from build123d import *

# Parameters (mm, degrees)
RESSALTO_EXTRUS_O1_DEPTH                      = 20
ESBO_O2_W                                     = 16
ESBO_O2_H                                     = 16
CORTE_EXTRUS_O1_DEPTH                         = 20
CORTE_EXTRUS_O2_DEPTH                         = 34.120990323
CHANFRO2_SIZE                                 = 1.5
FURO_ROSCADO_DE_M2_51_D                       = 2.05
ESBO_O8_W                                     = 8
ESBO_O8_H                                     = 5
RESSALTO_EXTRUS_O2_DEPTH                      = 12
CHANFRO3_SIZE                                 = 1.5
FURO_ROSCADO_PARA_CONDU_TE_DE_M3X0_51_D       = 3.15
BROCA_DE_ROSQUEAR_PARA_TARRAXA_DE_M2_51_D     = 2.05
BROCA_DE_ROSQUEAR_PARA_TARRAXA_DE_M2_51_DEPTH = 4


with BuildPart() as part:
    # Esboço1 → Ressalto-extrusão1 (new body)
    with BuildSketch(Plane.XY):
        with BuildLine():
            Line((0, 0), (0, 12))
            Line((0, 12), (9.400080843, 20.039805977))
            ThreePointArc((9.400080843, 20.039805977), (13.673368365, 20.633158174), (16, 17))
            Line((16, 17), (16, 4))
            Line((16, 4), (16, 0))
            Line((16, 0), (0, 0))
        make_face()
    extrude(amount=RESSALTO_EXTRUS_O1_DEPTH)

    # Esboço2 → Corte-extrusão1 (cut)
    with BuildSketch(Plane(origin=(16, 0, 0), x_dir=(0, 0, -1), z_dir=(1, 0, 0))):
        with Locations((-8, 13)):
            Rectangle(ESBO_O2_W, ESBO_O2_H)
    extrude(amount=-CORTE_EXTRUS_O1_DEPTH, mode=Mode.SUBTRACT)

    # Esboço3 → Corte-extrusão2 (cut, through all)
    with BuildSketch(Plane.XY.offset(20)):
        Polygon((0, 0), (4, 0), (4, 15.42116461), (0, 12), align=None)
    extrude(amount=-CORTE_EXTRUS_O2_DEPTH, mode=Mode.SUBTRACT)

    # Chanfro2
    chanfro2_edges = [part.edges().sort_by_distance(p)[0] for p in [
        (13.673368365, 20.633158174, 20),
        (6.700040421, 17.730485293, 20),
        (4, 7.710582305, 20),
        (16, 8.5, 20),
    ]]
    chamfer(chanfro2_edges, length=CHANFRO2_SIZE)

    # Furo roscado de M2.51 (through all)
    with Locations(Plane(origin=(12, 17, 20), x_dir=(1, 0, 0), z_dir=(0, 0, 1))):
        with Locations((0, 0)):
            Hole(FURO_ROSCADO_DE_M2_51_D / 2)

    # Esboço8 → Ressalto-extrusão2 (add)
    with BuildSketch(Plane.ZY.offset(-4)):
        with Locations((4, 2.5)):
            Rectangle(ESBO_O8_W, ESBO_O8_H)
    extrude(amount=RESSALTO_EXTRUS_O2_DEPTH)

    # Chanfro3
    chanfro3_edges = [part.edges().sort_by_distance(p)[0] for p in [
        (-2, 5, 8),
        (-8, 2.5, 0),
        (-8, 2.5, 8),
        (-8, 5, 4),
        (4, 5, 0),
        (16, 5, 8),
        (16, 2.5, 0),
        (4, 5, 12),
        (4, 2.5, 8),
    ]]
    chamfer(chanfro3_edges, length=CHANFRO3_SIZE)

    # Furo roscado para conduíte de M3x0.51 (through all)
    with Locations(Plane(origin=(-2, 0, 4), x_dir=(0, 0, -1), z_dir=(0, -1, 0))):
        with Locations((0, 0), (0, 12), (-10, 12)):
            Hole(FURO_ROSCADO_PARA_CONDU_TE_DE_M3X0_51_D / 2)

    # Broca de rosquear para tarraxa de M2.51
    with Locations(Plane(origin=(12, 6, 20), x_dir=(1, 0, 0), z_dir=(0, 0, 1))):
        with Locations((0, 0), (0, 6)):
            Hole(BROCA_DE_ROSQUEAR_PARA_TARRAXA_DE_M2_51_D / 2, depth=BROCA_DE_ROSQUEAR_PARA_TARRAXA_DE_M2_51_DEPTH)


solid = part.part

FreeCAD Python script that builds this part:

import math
import FreeCAD as App
import Part
import Sketcher


def edges_at(feature, points):
    """Names of the edges that pass closest to the given points."""
    edges = feature.Shape.Edges
    near = lambda p: min(range(len(edges)), key=lambda i: edges[i].distToShape(Part.Vertex(*p))[0])
    return sorted({f"Edge{near(p) + 1}" for p in points})


def add_polygon(sketch, points):
    """Adds a closed chain of lines whose ends are joined by coincident constraints."""
    first, n = sketch.GeometryCount, len(points)
    for a, b in zip(points, points[1:] + points[:1]):
        sketch.addGeometry(Part.LineSegment(App.Vector(*a, 0), App.Vector(*b, 0)), False)
    for i in range(n):
        sketch.addConstraint(Sketcher.Constraint("Coincident", first + i, 2, first + (i + 1) % n, 1))

doc = App.newDocument("Part")
params = doc.addObject("Spreadsheet::Sheet", "Params")
for row, (alias, value) in enumerate([
    ("sketch1_radius", "4 mm"),
    ("sketch1_width", "16 mm"),
    ("sketch1_height", "12 mm"),
    ("sketch1_height2", "17 mm"),
    ("pad1_length", "20 mm"),
    ("sketch2_width", "16 mm"),
    ("pocket1_length", "20 mm"),
    ("sketch3_width", "4 mm"),
    ("sketch3_height", "12 mm"),
    ("chamfer_size", "1.5 mm"),
    ("sketch4_diameter", "2.05 mm"),
    ("hole_diameter", "2.05 mm"),
    ("sketch5_width", "5 mm"),
    ("sketch5_height", "8 mm"),
    ("pad2_length", "12 mm"),
    ("chamfer2_size", "1.5 mm"),
    ("sketch6_diameter", "3.15 mm"),
    ("hole2_diameter", "3.15 mm"),
    ("sketch7_diameter", "2.05 mm"),
    ("hole3_diameter", "2.05 mm"),
    ("hole3_depth", "4 mm"),
], start=1):
    params.set(f"A{row}", alias)
    params.set(f"B{row}", "=" + value)
    params.setAlias(f"B{row}", alias)

body = doc.addObject("PartDesign::Body", "Body")

# Sketch on XY plane
sketch1 = doc.addObject("Sketcher::SketchObject", "Sketch")
body.addObject(sketch1)
sketch1.AttachmentSupport = (doc.XY_Plane, [""])
sketch1.MapMode = "FlatFace"
sketch1.addGeometry([
    Part.LineSegment(App.Vector(0, 12, 0), App.Vector(0, 0, 0)),  # 0
    Part.LineSegment(App.Vector(0, 0, 0), App.Vector(16, 0, 0)),  # 1
    Part.LineSegment(App.Vector(16, 0, 0), App.Vector(16, 17, 0)),  # 2
    Part.ArcOfCircle(Part.Circle(App.Vector(12, 17, 0), App.Vector(0, 0, 1), 4), math.radians(0), math.radians(130.540078)),  # 3
    Part.LineSegment(App.Vector(9.400081, 20.039806, 0), App.Vector(0, 12, 0)),  # 4
], False)
sketch1.addConstraint([
    Sketcher.Constraint("Coincident", 0, 2, 1, 1),
    Sketcher.Constraint("Coincident", 1, 2, 2, 1),
    Sketcher.Constraint("Tangent", 2, 2, 3, 1),
    Sketcher.Constraint("Tangent", 3, 2, 4, 1),
    Sketcher.Constraint("Coincident", 4, 2, 0, 1),
    Sketcher.Constraint("Vertical", 0),
    Sketcher.Constraint("Horizontal", 1),
    Sketcher.Constraint("Vertical", 2),
    Sketcher.Constraint("Coincident", 0, 2, -1, 1),
    Sketcher.Constraint("Radius", 3, 4.0),
    Sketcher.Constraint("DistanceX", 1, 1, 1, 2, 16.0),
    Sketcher.Constraint("DistanceY", 0, 2, 0, 1, 12.0),
    Sketcher.Constraint("DistanceY", 2, 1, 2, 2, 17.0),
])
sketch1.setExpression("Constraints[9]", "Params.sketch1_radius")
sketch1.setExpression("Constraints[10]", "Params.sketch1_width")
sketch1.setExpression("Constraints[11]", "Params.sketch1_height")
sketch1.setExpression("Constraints[12]", "Params.sketch1_height2")
pad1 = doc.addObject("PartDesign::Pad", "Pad")
body.addObject(pad1)
pad1.Profile = sketch1
pad1.setExpression("Length", "Params.pad1_length")

# Sketch on YZ plane
sketch2 = doc.addObject("Sketcher::SketchObject", "Sketch001")
body.addObject(sketch2)
sketch2.AttachmentSupport = (doc.YZ_Plane, [""])
sketch2.MapMode = "FlatFace"
sketch2.AttachmentOffset = App.Placement(App.Vector(0, 0, 16), App.Rotation())
add_polygon(sketch2, [(21, 16), (5, 16), (5, 0), (21, 0)])  # lines 0-3
sketch2.addConstraint([
    Sketcher.Constraint("Horizontal", 0),
    Sketcher.Constraint("Vertical", 1),
    Sketcher.Constraint("Horizontal", 2),
    Sketcher.Constraint("Vertical", 3),
    Sketcher.Constraint("PointOnObject", 1, 2, -1),
    Sketcher.Constraint("Equal", 2, 1),
    Sketcher.Constraint("DistanceX", 0, 2, 0, 1, 16.0),
    Sketcher.Constraint("DistanceX", -1, 1, 0, 2, 5.0),
])
sketch2.setExpression("Constraints[10]", "Params.sketch2_width")
pocket1 = doc.addObject("PartDesign::Pocket", "Pocket")
body.addObject(pocket1)
pocket1.Profile = sketch2
pocket1.setExpression("Length", "Params.pocket1_length")

# Sketch on XY plane
sketch3 = doc.addObject("Sketcher::SketchObject", "Sketch002")
body.addObject(sketch3)
sketch3.AttachmentSupport = (doc.XY_Plane, [""])
sketch3.MapMode = "FlatFace"
sketch3.AttachmentOffset = App.Placement(App.Vector(0, 0, 20), App.Rotation())
add_polygon(sketch3, [(0, 0), (4, 0), (4, 15.421165), (0, 12)])  # lines 0-3
sketch3.addConstraint([
    Sketcher.Constraint("Horizontal", 0),
    Sketcher.Constraint("Vertical", 1),
    Sketcher.Constraint("Vertical", 3),
    Sketcher.Constraint("Coincident", 3, 2, -1, 1),
    Sketcher.Constraint("DistanceX", 0, 1, 0, 2, 4.0),
    Sketcher.Constraint("DistanceY", 3, 2, 3, 1, 12.0),
    Sketcher.Constraint("DistanceY", 1, 1, 1, 2, 15.421165),
])
sketch3.setExpression("Constraints[8]", "Params.sketch3_width")
sketch3.setExpression("Constraints[9]", "Params.sketch3_height")
pocket2 = doc.addObject("PartDesign::Pocket", "Pocket001")
body.addObject(pocket2)
pocket2.Profile = sketch3
pocket2.Type = "ThroughAll"
doc.recompute()

chamfer = doc.addObject("PartDesign::Chamfer", "Chamfer")
body.addObject(chamfer)
chamfer.Base = (pocket2, edges_at(pocket2, [
    (13.673, 20.633, 20),
    (6.7, 17.73, 20),
    (4, 7.711, 20),
    (16, 8.5, 20),
]))
chamfer.setExpression("Size", "Params.chamfer_size")

# Sketch on XY plane
sketch4 = doc.addObject("Sketcher::SketchObject", "Sketch003")
body.addObject(sketch4)
sketch4.AttachmentSupport = (doc.XY_Plane, [""])
sketch4.MapMode = "FlatFace"
sketch4.AttachmentOffset = App.Placement(App.Vector(0, 0, 20), App.Rotation())
sketch4.addGeometry(Part.Circle(App.Vector(12, 17, 0), App.Vector(0, 0, 1), 1.025), False)
sketch4.addConstraint([
    Sketcher.Constraint("Diameter", 0, 2.05),
    Sketcher.Constraint("DistanceX", -1, 1, 0, 3, 12.0),
    Sketcher.Constraint("DistanceY", -1, 1, 0, 3, 17.0),
])
sketch4.setExpression("Constraints[0]", "Params.sketch4_diameter")
doc.recompute()
hole = doc.addObject("PartDesign::Hole", "Hole")
body.addObject(hole)
hole.Profile = sketch4
hole.ThreadType = "None"
hole.setExpression("Diameter", "Params.hole_diameter")
hole.DepthType = "ThroughAll"

# Sketch on YZ plane
sketch5 = doc.addObject("Sketcher::SketchObject", "Sketch004")
body.addObject(sketch5)
sketch5.AttachmentSupport = (doc.YZ_Plane, [""])
sketch5.MapMode = "FlatFace"
sketch5.AttachmentOffset = App.Placement(App.Vector(0, 0, 4), App.Rotation())
add_polygon(sketch5, [(5, 0), (0, 0), (0, 8), (5, 8)])  # lines 0-3
sketch5.addConstraint([
    Sketcher.Constraint("Horizontal", 0),
    Sketcher.Constraint("Vertical", 1),
    Sketcher.Constraint("Horizontal", 2),
    Sketcher.Constraint("Vertical", 3),
    Sketcher.Constraint("Coincident", 0, 2, -1, 1),
    Sketcher.Constraint("DistanceX", 0, 2, 0, 1, 5.0),
    Sketcher.Constraint("DistanceY", 1, 1, 1, 2, 8.0),
])
sketch5.setExpression("Constraints[9]", "Params.sketch5_width")
sketch5.setExpression("Constraints[10]", "Params.sketch5_height")
pad2 = doc.addObject("PartDesign::Pad", "Pad001")
body.addObject(pad2)
pad2.Profile = sketch5
pad2.setExpression("Length", "Params.pad2_length")
pad2.Reversed = True
doc.recompute()

chamfer2 = doc.addObject("PartDesign::Chamfer", "Chamfer001")
body.addObject(chamfer2)
chamfer2.Base = (pad2, edges_at(pad2, [
    (-2, 5, 8),
    (-8, 2.5, 0),
    (-8, 2.5, 8),
    (-8, 5, 4),
    (4, 5, 0),
    (16, 5, 8),
    (16, 2.5, 0),
    (4, 5, 12),
    (4, 2.5, 8),
]))
chamfer2.setExpression("Size", "Params.chamfer2_size")

# Sketch on XZ plane
sketch6 = doc.addObject("Sketcher::SketchObject", "Sketch005")
body.addObject(sketch6)
sketch6.AttachmentSupport = (doc.XZ_Plane, [""])
sketch6.MapMode = "FlatFace"
sketch6.addGeometry([
    Part.Circle(App.Vector(-2, 4, 0), App.Vector(0, 0, 1), 1.575),
    Part.Circle(App.Vector(10, 4, 0), App.Vector(0, 0, 1), 1.575),
    Part.Circle(App.Vector(10, 14, 0), App.Vector(0, 0, 1), 1.575),
], False)
sketch6.addConstraint([
    Sketcher.Constraint("Equal", 0, 1),
    Sketcher.Constraint("Equal", 1, 2),
    Sketcher.Constraint("Horizontal", 0, 3, 1, 3),
    Sketcher.Constraint("Vertical", 1, 3, 2, 3),
    Sketcher.Constraint("Diameter", 0, 3.15),
    Sketcher.Constraint("DistanceX", 0, 3, -1, 1, 2.0),
    Sketcher.Constraint("DistanceY", -1, 1, 0, 3, 4.0),
    Sketcher.Constraint("DistanceX", -1, 1, 1, 3, 10.0),
    Sketcher.Constraint("DistanceY", -1, 1, 2, 3, 14.0),
])
sketch6.setExpression("Constraints[4]", "Params.sketch6_diameter")
doc.recompute()
hole2 = doc.addObject("PartDesign::Hole", "Hole001")
body.addObject(hole2)
hole2.Profile = sketch6
hole2.ThreadType = "None"
hole2.setExpression("Diameter", "Params.hole2_diameter")
hole2.DepthType = "ThroughAll"

# Sketch on XY plane
sketch7 = doc.addObject("Sketcher::SketchObject", "Sketch006")
body.addObject(sketch7)
sketch7.AttachmentSupport = (doc.XY_Plane, [""])
sketch7.MapMode = "FlatFace"
sketch7.AttachmentOffset = App.Placement(App.Vector(0, 0, 20), App.Rotation())
sketch7.addGeometry([
    Part.Circle(App.Vector(12, 6, 0), App.Vector(0, 0, 1), 1.025),
    Part.Circle(App.Vector(12, 12, 0), App.Vector(0, 0, 1), 1.025),
], False)
sketch7.addConstraint([
    Sketcher.Constraint("Equal", 0, 1),
    Sketcher.Constraint("Vertical", 0, 3, 1, 3),
    Sketcher.Constraint("Diameter", 0, 2.05),
    Sketcher.Constraint("DistanceX", -1, 1, 0, 3, 12.0),
    Sketcher.Constraint("DistanceY", -1, 1, 0, 3, 6.0),
    Sketcher.Constraint("DistanceY", -1, 1, 1, 3, 12.0),
])
sketch7.setExpression("Constraints[2]", "Params.sketch7_diameter")
doc.recompute()
hole3 = doc.addObject("PartDesign::Hole", "Hole002")
body.addObject(hole3)
hole3.Profile = sketch7
hole3.ThreadType = "None"
hole3.setExpression("Diameter", "Params.hole3_diameter")
hole3.DepthType = "Dimension"
hole3.setExpression("Depth", "Params.hole3_depth")
hole3.DrillPoint = "Flat"

doc.recompute()
